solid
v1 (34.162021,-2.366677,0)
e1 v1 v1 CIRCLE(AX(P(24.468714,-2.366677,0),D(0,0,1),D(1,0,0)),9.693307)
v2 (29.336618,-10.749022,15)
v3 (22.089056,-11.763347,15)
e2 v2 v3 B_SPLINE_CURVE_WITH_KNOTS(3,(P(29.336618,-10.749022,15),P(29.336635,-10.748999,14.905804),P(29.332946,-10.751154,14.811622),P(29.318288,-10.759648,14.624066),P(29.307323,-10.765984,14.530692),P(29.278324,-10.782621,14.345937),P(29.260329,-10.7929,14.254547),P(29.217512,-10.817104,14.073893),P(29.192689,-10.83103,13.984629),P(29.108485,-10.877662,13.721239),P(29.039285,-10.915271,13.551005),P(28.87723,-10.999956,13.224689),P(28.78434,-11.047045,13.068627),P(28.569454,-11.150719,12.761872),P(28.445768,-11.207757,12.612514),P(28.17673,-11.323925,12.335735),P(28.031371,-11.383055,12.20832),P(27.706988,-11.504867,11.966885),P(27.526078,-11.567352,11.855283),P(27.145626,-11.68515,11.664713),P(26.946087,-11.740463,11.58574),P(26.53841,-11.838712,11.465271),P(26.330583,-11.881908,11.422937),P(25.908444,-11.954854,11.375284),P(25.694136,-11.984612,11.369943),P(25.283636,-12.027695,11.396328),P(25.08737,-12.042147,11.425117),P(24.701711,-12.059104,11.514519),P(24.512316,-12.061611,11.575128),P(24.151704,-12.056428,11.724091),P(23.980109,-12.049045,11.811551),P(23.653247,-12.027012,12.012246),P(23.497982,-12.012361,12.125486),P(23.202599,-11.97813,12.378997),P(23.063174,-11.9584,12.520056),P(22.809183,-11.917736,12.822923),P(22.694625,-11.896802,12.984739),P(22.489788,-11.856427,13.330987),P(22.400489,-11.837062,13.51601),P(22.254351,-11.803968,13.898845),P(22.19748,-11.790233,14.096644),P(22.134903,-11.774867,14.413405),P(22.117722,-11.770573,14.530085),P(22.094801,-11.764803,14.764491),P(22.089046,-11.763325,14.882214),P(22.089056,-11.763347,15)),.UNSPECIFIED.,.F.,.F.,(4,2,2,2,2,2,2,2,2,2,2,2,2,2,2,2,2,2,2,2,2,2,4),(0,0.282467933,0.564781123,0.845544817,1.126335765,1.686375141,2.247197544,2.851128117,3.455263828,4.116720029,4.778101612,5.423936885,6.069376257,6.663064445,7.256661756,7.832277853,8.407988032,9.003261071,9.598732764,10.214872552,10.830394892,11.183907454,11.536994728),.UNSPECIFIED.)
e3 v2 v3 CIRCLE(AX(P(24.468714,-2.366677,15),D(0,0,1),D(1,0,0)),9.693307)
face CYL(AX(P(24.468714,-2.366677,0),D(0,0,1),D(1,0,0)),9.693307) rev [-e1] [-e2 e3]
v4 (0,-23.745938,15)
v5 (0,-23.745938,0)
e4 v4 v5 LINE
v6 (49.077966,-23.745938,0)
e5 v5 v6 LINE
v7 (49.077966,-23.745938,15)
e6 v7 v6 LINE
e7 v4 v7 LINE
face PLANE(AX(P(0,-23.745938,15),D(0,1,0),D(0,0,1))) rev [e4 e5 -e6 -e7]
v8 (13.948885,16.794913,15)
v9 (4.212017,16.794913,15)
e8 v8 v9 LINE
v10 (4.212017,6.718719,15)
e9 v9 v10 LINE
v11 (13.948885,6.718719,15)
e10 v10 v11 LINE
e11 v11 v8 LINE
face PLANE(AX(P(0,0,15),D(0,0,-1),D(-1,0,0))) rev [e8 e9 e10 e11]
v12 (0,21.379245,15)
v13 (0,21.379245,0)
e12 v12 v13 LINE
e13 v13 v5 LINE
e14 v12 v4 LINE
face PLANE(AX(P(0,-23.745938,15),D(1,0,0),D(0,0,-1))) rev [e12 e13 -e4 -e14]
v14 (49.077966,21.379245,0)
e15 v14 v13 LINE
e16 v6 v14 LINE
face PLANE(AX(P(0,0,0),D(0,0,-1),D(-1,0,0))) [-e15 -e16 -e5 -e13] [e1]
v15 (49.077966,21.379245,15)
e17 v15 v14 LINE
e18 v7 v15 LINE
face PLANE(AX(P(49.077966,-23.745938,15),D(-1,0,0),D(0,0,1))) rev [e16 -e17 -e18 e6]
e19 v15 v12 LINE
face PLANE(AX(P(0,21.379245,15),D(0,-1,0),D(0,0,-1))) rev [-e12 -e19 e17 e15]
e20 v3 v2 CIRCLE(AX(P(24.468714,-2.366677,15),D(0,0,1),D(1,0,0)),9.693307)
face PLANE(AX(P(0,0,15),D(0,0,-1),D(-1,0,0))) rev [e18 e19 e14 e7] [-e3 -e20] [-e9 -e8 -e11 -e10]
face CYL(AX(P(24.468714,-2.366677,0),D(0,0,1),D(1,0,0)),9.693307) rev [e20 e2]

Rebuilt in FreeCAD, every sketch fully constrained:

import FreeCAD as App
import Part
import Sketcher


def add_polygon(sketch, points):
    """Adds a closed chain of lines whose ends are joined by coincident constraints."""
    first, n = sketch.GeometryCount, len(points)
    for a, b in zip(points, points[1:] + points[:1]):
        sketch.addGeometry(Part.LineSegment(App.Vector(*a, 0), App.Vector(*b, 0)), False)
    for i in range(n):
        sketch.addConstraint(Sketcher.Constraint("Coincident", first + i, 2, first + (i + 1) % n, 1))

doc = App.newDocument("Part")
body = doc.addObject("PartDesign::Body", "Body")

sketch1 = doc.addObject("Sketcher::SketchObject", "Sketch")
body.addObject(sketch1)
sketch1.AttachmentSupport = (doc.XY_Plane, [""])
sketch1.MapMode = "FlatFace"
add_polygon(sketch1, [(0, 21), (0, -24), (49, -24), (49, 21)])
sketch1.addConstraint(Sketcher.Constraint("Vertical", 0))
sketch1.addConstraint(Sketcher.Constraint("Horizontal", 1))
sketch1.addConstraint(Sketcher.Constraint("Vertical", 2))
sketch1.addConstraint(Sketcher.Constraint("Horizontal", 3))
sketch1.addConstraint(Sketcher.Constraint("PointOnObject", 0, 2, -2))
sketch1.addConstraint(Sketcher.Constraint("DistanceX", 1, 1, 1, 2, 49.077966))
sketch1.addConstraint(Sketcher.Constraint("DistanceY", 0, 2, 0, 1, 45.125182))
sketch1.addConstraint(Sketcher.Constraint("DistanceY", 0, 2, -1, 1, 23.745938))
pad1 = doc.addObject("PartDesign::Pad", "Pad")
body.addObject(pad1)
pad1.Profile = sketch1
pad1.Length = 15

sketch2 = doc.addObject("Sketcher::SketchObject", "Sketch001")
body.addObject(sketch2)
sketch2.AttachmentSupport = (doc.XY_Plane, [""])
sketch2.MapMode = "FlatFace"
sketch2.AttachmentOffset = App.Placement(App.Vector(0, 0, 15), App.Rotation())
sketch2.addGeometry(Part.Circle(App.Vector(24, -2, 0), App.Vector(0, 0, 1), 10), False)
sketch2.addConstraint(Sketcher.Constraint("Diameter", 0, 19.386613))
sketch2.addConstraint(Sketcher.Constraint("DistanceX", -1, 1, 0, 3, 24.468714))
sketch2.addConstraint(Sketcher.Constraint("DistanceY", 0, 3, -1, 1, 2.366677))
pocket1 = doc.addObject("PartDesign::Pocket", "Pocket")
body.addObject(pocket1)
pocket1.Profile = sketch2
pocket1.Type = "ThroughAll"

doc.recompute()
